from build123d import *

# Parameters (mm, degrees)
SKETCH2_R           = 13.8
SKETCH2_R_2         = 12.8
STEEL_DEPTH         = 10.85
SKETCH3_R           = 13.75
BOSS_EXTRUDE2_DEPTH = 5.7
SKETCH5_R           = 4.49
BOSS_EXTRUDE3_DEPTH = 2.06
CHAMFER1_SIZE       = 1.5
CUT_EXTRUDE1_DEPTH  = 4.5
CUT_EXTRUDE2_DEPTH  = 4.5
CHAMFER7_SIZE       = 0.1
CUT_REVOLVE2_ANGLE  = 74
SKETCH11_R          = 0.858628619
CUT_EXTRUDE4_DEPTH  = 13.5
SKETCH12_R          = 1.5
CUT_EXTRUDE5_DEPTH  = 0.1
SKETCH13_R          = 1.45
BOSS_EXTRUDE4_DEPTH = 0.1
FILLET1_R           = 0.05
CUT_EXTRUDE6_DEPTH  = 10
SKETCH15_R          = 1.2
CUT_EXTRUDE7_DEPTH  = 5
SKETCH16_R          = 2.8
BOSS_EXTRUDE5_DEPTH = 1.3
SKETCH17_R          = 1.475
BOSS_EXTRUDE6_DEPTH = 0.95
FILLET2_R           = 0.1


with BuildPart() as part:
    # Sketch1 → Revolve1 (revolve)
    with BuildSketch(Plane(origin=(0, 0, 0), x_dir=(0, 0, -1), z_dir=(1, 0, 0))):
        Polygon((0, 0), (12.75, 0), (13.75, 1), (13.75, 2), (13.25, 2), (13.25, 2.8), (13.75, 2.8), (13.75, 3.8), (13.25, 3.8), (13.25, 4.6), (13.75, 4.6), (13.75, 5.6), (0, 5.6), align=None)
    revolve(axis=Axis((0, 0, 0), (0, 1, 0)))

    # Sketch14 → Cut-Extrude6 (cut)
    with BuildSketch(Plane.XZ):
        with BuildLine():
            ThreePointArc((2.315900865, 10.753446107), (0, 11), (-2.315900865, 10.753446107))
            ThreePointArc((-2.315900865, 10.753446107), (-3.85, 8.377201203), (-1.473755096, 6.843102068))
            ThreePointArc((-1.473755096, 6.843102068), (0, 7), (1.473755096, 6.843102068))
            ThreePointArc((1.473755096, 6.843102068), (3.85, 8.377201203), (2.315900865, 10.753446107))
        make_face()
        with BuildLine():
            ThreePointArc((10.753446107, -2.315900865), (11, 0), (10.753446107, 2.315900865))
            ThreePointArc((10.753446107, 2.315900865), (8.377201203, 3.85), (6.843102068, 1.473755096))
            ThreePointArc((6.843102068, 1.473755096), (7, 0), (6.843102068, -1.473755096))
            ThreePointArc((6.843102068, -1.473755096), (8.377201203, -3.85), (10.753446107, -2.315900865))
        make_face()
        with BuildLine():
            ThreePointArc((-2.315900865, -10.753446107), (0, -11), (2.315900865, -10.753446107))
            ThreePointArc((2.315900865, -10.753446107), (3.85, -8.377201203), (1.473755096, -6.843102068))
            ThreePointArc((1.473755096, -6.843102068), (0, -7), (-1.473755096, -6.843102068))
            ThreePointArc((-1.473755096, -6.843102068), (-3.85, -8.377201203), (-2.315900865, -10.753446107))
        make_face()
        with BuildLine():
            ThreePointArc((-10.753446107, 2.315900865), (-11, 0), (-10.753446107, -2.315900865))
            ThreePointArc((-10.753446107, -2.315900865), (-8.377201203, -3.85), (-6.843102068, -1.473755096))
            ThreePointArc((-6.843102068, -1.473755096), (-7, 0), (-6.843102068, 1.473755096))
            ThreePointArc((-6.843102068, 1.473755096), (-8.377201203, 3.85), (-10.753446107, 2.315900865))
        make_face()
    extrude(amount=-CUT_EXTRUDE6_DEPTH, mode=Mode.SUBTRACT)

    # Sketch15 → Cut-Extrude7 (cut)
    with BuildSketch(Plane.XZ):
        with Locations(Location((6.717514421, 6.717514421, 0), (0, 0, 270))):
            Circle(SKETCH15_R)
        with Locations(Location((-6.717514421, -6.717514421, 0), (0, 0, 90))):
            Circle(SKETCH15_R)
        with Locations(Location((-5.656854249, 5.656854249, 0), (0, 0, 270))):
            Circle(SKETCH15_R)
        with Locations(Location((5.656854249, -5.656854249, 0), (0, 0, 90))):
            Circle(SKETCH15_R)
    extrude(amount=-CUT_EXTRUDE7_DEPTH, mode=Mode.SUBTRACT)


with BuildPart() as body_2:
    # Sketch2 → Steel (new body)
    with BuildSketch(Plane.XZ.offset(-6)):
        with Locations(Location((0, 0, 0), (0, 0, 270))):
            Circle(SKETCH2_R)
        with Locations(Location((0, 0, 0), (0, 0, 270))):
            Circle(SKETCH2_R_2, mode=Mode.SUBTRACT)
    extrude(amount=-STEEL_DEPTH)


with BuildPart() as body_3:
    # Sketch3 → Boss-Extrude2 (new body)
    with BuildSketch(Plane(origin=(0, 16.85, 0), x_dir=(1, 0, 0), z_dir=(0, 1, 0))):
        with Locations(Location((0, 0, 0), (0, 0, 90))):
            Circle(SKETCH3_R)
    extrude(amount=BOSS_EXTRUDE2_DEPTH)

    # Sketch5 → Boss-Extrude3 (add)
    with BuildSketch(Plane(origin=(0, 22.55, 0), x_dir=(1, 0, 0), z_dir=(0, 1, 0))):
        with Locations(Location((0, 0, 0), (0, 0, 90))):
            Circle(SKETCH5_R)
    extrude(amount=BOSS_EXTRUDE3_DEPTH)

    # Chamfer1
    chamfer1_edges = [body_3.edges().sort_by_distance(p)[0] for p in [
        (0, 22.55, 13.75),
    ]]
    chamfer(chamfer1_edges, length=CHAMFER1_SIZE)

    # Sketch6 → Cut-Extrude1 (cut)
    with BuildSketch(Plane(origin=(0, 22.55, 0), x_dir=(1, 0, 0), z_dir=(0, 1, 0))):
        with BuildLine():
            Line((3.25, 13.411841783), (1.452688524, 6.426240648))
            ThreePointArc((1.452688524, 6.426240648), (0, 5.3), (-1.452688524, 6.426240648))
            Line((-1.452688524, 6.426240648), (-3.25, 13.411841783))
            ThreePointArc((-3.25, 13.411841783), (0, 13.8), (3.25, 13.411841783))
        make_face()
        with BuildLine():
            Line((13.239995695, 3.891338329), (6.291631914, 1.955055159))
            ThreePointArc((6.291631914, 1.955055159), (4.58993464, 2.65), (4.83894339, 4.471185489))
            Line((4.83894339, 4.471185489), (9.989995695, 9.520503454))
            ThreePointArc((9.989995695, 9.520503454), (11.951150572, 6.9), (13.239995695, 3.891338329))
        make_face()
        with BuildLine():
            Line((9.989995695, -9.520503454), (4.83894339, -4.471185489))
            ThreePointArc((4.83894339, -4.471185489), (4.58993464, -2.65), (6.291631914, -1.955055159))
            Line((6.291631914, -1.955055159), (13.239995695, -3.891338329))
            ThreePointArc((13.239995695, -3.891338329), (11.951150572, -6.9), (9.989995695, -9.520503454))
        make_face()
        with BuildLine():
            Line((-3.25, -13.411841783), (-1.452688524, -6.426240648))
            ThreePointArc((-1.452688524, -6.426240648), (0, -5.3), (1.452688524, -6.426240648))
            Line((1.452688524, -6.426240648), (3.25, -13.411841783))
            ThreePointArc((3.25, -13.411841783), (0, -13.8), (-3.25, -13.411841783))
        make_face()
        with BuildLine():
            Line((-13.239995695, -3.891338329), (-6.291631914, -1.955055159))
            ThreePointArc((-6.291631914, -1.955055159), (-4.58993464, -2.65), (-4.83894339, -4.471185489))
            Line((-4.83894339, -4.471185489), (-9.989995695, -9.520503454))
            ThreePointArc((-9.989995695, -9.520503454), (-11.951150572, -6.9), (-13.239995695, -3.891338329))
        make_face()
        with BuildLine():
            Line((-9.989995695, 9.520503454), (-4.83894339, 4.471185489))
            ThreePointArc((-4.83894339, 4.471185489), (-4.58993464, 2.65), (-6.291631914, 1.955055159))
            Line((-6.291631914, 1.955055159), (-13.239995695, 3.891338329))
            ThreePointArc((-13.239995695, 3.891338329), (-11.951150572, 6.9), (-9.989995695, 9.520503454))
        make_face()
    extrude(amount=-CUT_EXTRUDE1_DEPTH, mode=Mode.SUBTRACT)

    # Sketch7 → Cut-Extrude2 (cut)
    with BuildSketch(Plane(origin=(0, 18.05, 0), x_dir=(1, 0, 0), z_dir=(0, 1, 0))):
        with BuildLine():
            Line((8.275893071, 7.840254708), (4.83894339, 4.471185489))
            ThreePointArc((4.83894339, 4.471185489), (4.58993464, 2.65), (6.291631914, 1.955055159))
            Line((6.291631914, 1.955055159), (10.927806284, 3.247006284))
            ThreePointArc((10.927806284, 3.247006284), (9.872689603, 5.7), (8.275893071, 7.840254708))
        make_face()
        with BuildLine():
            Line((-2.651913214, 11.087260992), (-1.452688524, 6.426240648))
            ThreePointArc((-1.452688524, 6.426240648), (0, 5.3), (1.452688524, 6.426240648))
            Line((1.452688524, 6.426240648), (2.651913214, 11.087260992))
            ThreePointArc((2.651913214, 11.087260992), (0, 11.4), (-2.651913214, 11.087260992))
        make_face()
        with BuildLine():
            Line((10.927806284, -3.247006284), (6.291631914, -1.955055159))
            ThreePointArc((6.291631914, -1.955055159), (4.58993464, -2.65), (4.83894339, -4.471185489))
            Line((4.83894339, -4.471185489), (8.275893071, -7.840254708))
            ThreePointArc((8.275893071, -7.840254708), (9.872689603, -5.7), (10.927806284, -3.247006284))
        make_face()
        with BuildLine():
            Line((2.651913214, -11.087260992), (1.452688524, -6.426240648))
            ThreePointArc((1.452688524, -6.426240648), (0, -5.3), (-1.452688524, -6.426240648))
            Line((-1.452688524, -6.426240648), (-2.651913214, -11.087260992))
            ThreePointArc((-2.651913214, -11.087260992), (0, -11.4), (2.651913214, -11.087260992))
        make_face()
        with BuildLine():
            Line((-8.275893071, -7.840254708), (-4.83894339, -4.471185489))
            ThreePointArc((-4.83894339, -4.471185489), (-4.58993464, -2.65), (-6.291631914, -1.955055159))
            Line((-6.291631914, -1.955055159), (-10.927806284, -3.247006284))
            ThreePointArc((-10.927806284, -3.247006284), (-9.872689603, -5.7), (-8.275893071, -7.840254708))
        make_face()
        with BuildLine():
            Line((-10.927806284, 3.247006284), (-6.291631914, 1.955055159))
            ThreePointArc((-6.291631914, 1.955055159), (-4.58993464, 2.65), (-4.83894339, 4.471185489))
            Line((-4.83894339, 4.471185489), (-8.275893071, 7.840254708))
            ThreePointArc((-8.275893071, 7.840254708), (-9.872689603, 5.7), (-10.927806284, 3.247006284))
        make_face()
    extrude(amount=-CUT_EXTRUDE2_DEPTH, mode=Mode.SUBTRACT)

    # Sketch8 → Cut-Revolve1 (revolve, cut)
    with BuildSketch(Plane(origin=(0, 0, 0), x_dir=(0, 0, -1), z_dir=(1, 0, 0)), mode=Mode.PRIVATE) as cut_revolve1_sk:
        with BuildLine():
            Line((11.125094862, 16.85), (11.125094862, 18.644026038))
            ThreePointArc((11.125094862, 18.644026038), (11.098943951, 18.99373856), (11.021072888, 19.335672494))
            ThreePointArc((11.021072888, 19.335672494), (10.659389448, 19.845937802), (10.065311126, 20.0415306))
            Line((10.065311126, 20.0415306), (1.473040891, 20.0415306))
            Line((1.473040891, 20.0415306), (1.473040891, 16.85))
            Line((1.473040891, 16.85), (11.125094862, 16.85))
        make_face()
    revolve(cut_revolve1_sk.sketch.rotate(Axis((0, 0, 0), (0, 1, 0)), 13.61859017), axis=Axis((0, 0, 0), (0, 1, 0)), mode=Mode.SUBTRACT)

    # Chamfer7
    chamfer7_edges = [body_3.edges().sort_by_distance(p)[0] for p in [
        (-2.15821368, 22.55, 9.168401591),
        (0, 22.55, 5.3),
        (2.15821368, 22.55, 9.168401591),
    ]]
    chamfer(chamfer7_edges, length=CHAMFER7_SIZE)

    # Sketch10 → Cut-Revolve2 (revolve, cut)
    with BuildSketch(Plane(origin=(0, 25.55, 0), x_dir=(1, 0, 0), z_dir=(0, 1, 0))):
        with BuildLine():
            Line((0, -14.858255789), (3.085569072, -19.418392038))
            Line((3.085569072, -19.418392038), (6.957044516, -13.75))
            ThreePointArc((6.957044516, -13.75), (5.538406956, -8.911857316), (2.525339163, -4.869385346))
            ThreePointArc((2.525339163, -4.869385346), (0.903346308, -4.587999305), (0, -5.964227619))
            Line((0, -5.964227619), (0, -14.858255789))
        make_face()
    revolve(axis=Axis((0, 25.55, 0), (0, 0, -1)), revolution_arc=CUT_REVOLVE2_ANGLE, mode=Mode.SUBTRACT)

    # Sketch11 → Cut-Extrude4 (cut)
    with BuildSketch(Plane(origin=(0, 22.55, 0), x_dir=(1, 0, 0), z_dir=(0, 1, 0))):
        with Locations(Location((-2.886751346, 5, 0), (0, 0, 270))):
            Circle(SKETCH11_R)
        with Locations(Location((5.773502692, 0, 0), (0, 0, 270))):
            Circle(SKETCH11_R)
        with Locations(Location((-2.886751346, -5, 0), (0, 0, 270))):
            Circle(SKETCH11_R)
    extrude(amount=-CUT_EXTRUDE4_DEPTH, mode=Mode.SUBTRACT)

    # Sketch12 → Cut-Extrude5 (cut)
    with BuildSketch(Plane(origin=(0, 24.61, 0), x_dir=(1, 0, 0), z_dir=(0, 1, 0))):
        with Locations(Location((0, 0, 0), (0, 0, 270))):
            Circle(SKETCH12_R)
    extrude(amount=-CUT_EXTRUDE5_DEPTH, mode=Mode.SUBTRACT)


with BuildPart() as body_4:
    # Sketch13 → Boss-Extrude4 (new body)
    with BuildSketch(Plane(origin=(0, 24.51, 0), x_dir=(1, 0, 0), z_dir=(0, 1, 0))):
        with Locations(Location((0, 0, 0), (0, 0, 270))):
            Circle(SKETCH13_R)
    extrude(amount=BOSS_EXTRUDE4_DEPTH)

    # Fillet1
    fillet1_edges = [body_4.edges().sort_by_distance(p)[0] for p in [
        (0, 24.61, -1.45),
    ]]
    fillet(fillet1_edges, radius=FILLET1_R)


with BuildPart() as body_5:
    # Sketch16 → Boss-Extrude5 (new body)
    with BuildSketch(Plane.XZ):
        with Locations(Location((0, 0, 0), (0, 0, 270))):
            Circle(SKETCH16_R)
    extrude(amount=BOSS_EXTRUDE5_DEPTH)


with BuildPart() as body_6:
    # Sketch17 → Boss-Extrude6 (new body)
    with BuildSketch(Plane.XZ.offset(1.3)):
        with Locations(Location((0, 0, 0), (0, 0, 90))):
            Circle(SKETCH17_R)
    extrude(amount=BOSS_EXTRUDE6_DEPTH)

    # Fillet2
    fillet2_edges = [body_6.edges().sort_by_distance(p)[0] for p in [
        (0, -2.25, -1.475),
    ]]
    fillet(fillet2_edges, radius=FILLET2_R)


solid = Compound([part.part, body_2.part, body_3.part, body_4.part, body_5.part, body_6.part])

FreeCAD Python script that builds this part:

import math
import FreeCAD as App
import Part
import Sketcher

V = App.Vector
Q = App.Units.Quantity


def edges_at(feature, points):
    """Names of the edges that pass closest to the given points."""
    edges = feature.Shape.Edges
    near = lambda p: min(range(len(edges)), key=lambda i: edges[i].distToShape(Part.Vertex(*p))[0])
    return sorted({f"Edge{near(p) + 1}" for p in points})

doc = App.newDocument("Part")
body = doc.addObject("PartDesign::Body", "Body")

sketch1 = doc.addObject("Sketcher::SketchObject", "Sketch")
body.addObject(sketch1)
sketch1.AttachmentSupport = (doc.YZ_Plane, [""])
sketch1.MapMode = "FlatFace"
sketch1.addGeometry([
    Part.LineSegment(V(0, 0, 0), V(0, -12.8, 0)),
    Part.LineSegment(V(0, -12.8, 0), V(1, -13.8, 0)),
    Part.LineSegment(V(1, -13.8, 0), V(2, -13.8, 0)),
    Part.LineSegment(V(2, -13.8, 0), V(2, -13.2, 0)),
    Part.LineSegment(V(2, -13.2, 0), V(2.8, -13.2, 0)),
    Part.LineSegment(V(2.8, -13.2, 0), V(2.8, -13.8, 0)),
    Part.LineSegment(V(2.8, -13.8, 0), V(3.8, -13.8, 0)),
    Part.LineSegment(V(3.8, -13.8, 0), V(3.8, -13.2, 0)),
    Part.LineSegment(V(3.8, -13.2, 0), V(4.6, -13.2, 0)),
    Part.LineSegment(V(4.6, -13.2, 0), V(4.6, -13.8, 0)),
    Part.LineSegment(V(4.6, -13.8, 0), V(5.6, -13.8, 0)),
    Part.LineSegment(V(5.6, -13.8, 0), V(5.6, 0, 0)),
    Part.LineSegment(V(5.6, 0, 0), V(0, 0, 0)),
], False)
sketch1.addConstraint([
    Sketcher.Constraint("Coincident", 0, 2, 1, 1),
    Sketcher.Constraint("Coincident", 1, 2, 2, 1),
    Sketcher.Constraint("Coincident", 2, 2, 3, 1),
    Sketcher.Constraint("Coincident", 3, 2, 4, 1),
    Sketcher.Constraint("Coincident", 4, 2, 5, 1),
    Sketcher.Constraint("Coincident", 5, 2, 6, 1),
    Sketcher.Constraint("Coincident", 6, 2, 7, 1),
    Sketcher.Constraint("Coincident", 7, 2, 8, 1),
    Sketcher.Constraint("Coincident", 8, 2, 9, 1),
    Sketcher.Constraint("Coincident", 9, 2, 10, 1),
    Sketcher.Constraint("Coincident", 10, 2, 11, 1),
    Sketcher.Constraint("Coincident", 11, 2, 12, 1),
    Sketcher.Constraint("Coincident", 12, 2, 0, 1),
    Sketcher.Constraint("Vertical", 0),
    Sketcher.Constraint("Horizontal", 2),
    Sketcher.Constraint("Vertical", 3),
    Sketcher.Constraint("Horizontal", 4),
    Sketcher.Constraint("Vertical", 5),
    Sketcher.Constraint("Horizontal", 6),
    Sketcher.Constraint("Vertical", 7),
    Sketcher.Constraint("Horizontal", 8),
    Sketcher.Constraint("Vertical", 9),
    Sketcher.Constraint("Horizontal", 10),
    Sketcher.Constraint("Vertical", 11),
    Sketcher.Constraint("Horizontal", 12),
    Sketcher.Constraint("Coincident", 12, 2, -1, 1),
    Sketcher.Constraint("Horizontal", 2, 2, 5, 2),
    Sketcher.Constraint("Horizontal", 4, 2, 7, 2),
    Sketcher.Constraint("Horizontal", 6, 2, 9, 2),
    Sketcher.Constraint("Equal", 2, 6),
    Sketcher.Constraint("Equal", 4, 8),
    Sketcher.Constraint("Equal", 6, 10),
    Sketcher.Constraint("DistanceX", 2, 1, 2, 2, 1.0),
    Sketcher.Constraint("Angle", 1, Q("-45 deg")),
    Sketcher.Constraint("DistanceX", 4, 1, 4, 2, 0.8),
    Sketcher.Constraint("DistanceX", 12, 2, 12, 1, 5.6),
    Sketcher.Constraint("DistanceY", 3, 1, 3, 2, 0.5),
    Sketcher.Constraint("DistanceY", 0, 2, 0, 1, 12.75),
])
revolution = doc.addObject("PartDesign::Revolution", "Revolution")
body.addObject(revolution)
revolution.Profile = sketch1
revolution.ReferenceAxis = (sketch1, ["H_Axis"])
revolution.Angle = 360

sketch2 = doc.addObject("Sketcher::SketchObject", "Sketch001")
body.addObject(sketch2)
sketch2.AttachmentSupport = (doc.XZ_Plane, [""])
sketch2.MapMode = "FlatFace"
sketch2.addGeometry([
    Part.ArcOfCircle(Part.Circle(V(0, 0, 0), V(0, 0, 1), 11), math.radians(78), math.radians(102)),
    Part.ArcOfCircle(Part.Circle(V(-1.9, 8.8, 0), V(0, 0, 1), 2), math.radians(102), math.radians(282)),
    Part.ArcOfCircle(Part.Circle(V(0, 0, 0), V(0, 0, 1), 7), math.radians(78), math.radians(102)),
    Part.ArcOfCircle(Part.Circle(V(1.9, 8.8, 0), V(0, 0, 1), 2), math.radians(-102), math.radians(78)),
    Part.ArcOfCircle(Part.Circle(V(0, 0, 0), V(0, 0, 1), 11), math.radians(-12), math.radians(12)),
    Part.ArcOfCircle(Part.Circle(V(8.8, 1.9, 0), V(0, 0, 1), 2), math.radians(12), math.radians(192)),
    Part.ArcOfCircle(Part.Circle(V(0, 0, 0), V(0, 0, 1), 7), math.radians(-12), math.radians(12)),
    Part.ArcOfCircle(Part.Circle(V(8.8, -1.9, 0), V(0, 0, 1), 2), math.radians(168), math.radians(348)),
    Part.ArcOfCircle(Part.Circle(V(0, 0, 0), V(0, 0, 1), 11), math.radians(-102), math.radians(-78)),
    Part.ArcOfCircle(Part.Circle(V(1.9, -8.8, 0), V(0, 0, 1), 2), math.radians(-78), math.radians(102)),
    Part.ArcOfCircle(Part.Circle(V(0, 0, 0), V(0, 0, 1), 7), math.radians(-102), math.radians(-78)),
    Part.ArcOfCircle(Part.Circle(V(-1.9, -8.8, 0), V(0, 0, 1), 2), math.radians(78), math.radians(258)),
    Part.ArcOfCircle(Part.Circle(V(0, 0, 0), V(0, 0, 1), 11), math.radians(168), math.radians(192)),
    Part.ArcOfCircle(Part.Circle(V(-8.8, -1.9, 0), V(0, 0, 1), 2), math.radians(-168), math.radians(12)),
    Part.ArcOfCircle(Part.Circle(V(0, 0, 0), V(0, 0, 1), 7), math.radians(168), math.radians(192)),
    Part.ArcOfCircle(Part.Circle(V(-8.8, 1.9, 0), V(0, 0, 1), 2), math.radians(-12), math.radians(168)),
], False)
sketch2.addConstraint([
    Sketcher.Constraint("Tangent", 0, 2, 1, 1),
    Sketcher.Constraint("Tangent", 1, 2, 2, 2),
    Sketcher.Constraint("Tangent", 2, 1, 3, 1),
    Sketcher.Constraint("Tangent", 3, 2, 0, 1),
    Sketcher.Constraint("Tangent", 4, 2, 5, 1),
    Sketcher.Constraint("Tangent", 5, 2, 6, 2),
    Sketcher.Constraint("Tangent", 6, 1, 7, 1),
    Sketcher.Constraint("Tangent", 7, 2, 4, 1),
    Sketcher.Constraint("Tangent", 8, 2, 9, 1),
    Sketcher.Constraint("Tangent", 9, 2, 10, 2),
    Sketcher.Constraint("Tangent", 10, 1, 11, 1),
    Sketcher.Constraint("Tangent", 11, 2, 8, 1),
    Sketcher.Constraint("Tangent", 12, 2, 13, 1),
    Sketcher.Constraint("Tangent", 13, 2, 14, 2),
    Sketcher.Constraint("Tangent", 14, 1, 15, 1),
    Sketcher.Constraint("Tangent", 15, 2, 12, 1),
    Sketcher.Constraint("Coincident", 0, 3, -1, 1),
    Sketcher.Constraint("Coincident", 2, 3, -1, 1),
    Sketcher.Constraint("Coincident", 4, 3, -1, 1),
    Sketcher.Constraint("Coincident", 6, 3, -1, 1),
    Sketcher.Constraint("Coincident", 8, 3, -1, 1),
    Sketcher.Constraint("Coincident", 10, 3, -1, 1),
    Sketcher.Constraint("Coincident", 12, 3, -1, 1),
    Sketcher.Constraint("Coincident", 14, 3, -1, 1),
    Sketcher.Constraint("Equal", 0, 4),
    Sketcher.Constraint("Equal", 3, 5),
    Sketcher.Constraint("Equal", 4, 8),
    Sketcher.Constraint("Equal", 7, 9),
    Sketcher.Constraint("Equal", 8, 12),
    Sketcher.Constraint("Equal", 11, 13),
    Sketcher.Constraint("Horizontal", 1, 3, 3, 3),
    Sketcher.Constraint("Horizontal", 9, 3, 11, 3),
    Sketcher.Constraint("Horizontal", 7, 3, 13, 3),
    Sketcher.Constraint("Horizontal", 5, 3, 15, 3),
    Sketcher.Constraint("Vertical", 5, 3, 7, 3),
    Sketcher.Constraint("Vertical", 3, 3, 9, 3),
    Sketcher.Constraint("Radius", 0, 11.0),
    Sketcher.Constraint("Radius", 1, 2.0),
    Sketcher.Constraint("DistanceX", 0, 2, -1, 1, 2.315901),
    Sketcher.Constraint("DistanceY", -1, 1, 4, 2, 2.315901),
])
pocket1 = doc.addObject("PartDesign::Pocket", "Pocket")
body.addObject(pocket1)
pocket1.Profile = sketch2
pocket1.Length = 10

sketch3 = doc.addObject("Sketcher::SketchObject", "Sketch002")
body.addObject(sketch3)
sketch3.AttachmentSupport = (doc.XZ_Plane, [""])
sketch3.MapMode = "FlatFace"
sketch3.addGeometry([
    Part.Circle(V(6.7, 6.7, 0), V(0, 0, 1), 1.2),
    Part.Circle(V(-6.7, -6.7, 0), V(0, 0, 1), 1.2),
    Part.Circle(V(-5.7, 5.7, 0), V(0, 0, 1), 1.2),
    Part.Circle(V(5.7, -5.7, 0), V(0, 0, 1), 1.2),
], False)
sketch3.addConstraint([
    Sketcher.Constraint("Equal", 0, 1),
    Sketcher.Constraint("Equal", 1, 2),
    Sketcher.Constraint("Equal", 2, 3),
    Sketcher.Constraint("Symmetric", 0, 3, 1, 3, -1, 1),
    Sketcher.Constraint("Symmetric", 2, 3, 3, 3, -1, 1),
    Sketcher.Constraint("Diameter", 0, 2.4),
    Sketcher.Constraint("DistanceX", 1, 3, 0, 3, 13.435029),
    Sketcher.Constraint("DistanceY", 1, 3, 0, 3, 13.435029),
    Sketcher.Constraint("DistanceX", 2, 3, 0, 3, 12.374369),
    Sketcher.Constraint("DistanceY", 2, 3, 0, 3, 1.06066),
])
pocket2 = doc.addObject("PartDesign::Pocket", "Pocket001")
body.addObject(pocket2)
pocket2.Profile = sketch3
pocket2.Length = 5
body2 = doc.addObject("PartDesign::Body", "Body001")

sketch4 = doc.addObject("Sketcher::SketchObject", "Sketch003")
body2.addObject(sketch4)
sketch4.AttachmentSupport = (doc.getObject("XZ_Plane001"), [""])
sketch4.MapMode = "FlatFace"
sketch4.AttachmentOffset = App.Placement(V(0, 0, -6), App.Rotation())
sketch4.addGeometry([
    Part.Circle(V(0, 0, 0), V(0, 0, 1), 14),
    Part.Circle(V(0, 0, 0), V(0, 0, 1), 13),
], False)
sketch4.addConstraint([
    Sketcher.Constraint("Coincident", 0, 3, -1, 1),
    Sketcher.Constraint("Coincident", 1, 3, -1, 1),
    Sketcher.Constraint("Diameter", 0, 27.6),
    Sketcher.Constraint("Diameter", 1, 25.6),
])
pad1 = doc.addObject("PartDesign::Pad", "Pad")
body2.addObject(pad1)
pad1.Profile = sketch4
pad1.Length = 10.85
pad1.Reversed = True
body3 = doc.addObject("PartDesign::Body", "Body002")

sketch5 = doc.addObject("Sketcher::SketchObject", "Sketch004")
body3.addObject(sketch5)
sketch5.AttachmentSupport = (doc.getObject("XZ_Plane002"), [""])
sketch5.MapMode = "FlatFace"
sketch5.AttachmentOffset = App.Placement(V(0, 0, -16.85), App.Rotation())
sketch5.addGeometry(Part.Circle(V(0, 0, 0), V(0, 0, 1), 14), False)
sketch5.addConstraint([
    Sketcher.Constraint("Coincident", 0, 3, -1, 1),
    Sketcher.Constraint("Diameter", 0, 27.5),
])
pad2 = doc.addObject("PartDesign::Pad", "Pad001")
body3.addObject(pad2)
pad2.Profile = sketch5
pad2.Length = 5.7
pad2.Reversed = True

sketch6 = doc.addObject("Sketcher::SketchObject", "Sketch005")
body3.addObject(sketch6)
sketch6.AttachmentSupport = (doc.getObject("XZ_Plane002"), [""])
sketch6.MapMode = "FlatFace"
sketch6.AttachmentOffset = App.Placement(V(0, 0, -22.55), App.Rotation())
sketch6.addGeometry(Part.Circle(V(0, 0, 0), V(0, 0, 1), 4.5), False)
sketch6.addConstraint([
    Sketcher.Constraint("Coincident", 0, 3, -1, 1),
    Sketcher.Constraint("Diameter", 0, 8.98),
])
pad3 = doc.addObject("PartDesign::Pad", "Pad002")
body3.addObject(pad3)
pad3.Profile = sketch6
pad3.Length = 2.06
pad3.Reversed = True
doc.recompute()

chamfer = doc.addObject("PartDesign::Chamfer", "Chamfer")
body3.addObject(chamfer)
chamfer.Base = (pad3, edges_at(pad3, [(0, 22.55, 13.75)]))
chamfer.Size = 1.5

sketch7 = doc.addObject("Sketcher::SketchObject", "Sketch006")
body3.addObject(sketch7)
sketch7.AttachmentSupport = (doc.getObject("XZ_Plane002"), [""])
sketch7.MapMode = "FlatFace"
sketch7.AttachmentOffset = App.Placement(V(0, 0, -22.55), App.Rotation())
sketch7.addGeometry([
    Part.LineSegment(V(1.5, -6.4, 0), V(3.2, -13.4, 0)),
    Part.ArcOfCircle(Part.Circle(V(0, 0, 0), V(0, 0, 1), 13.8), math.radians(-104), math.radians(-76)),
    Part.LineSegment(V(-3.2, -13.4, 0), V(-1.5, -6.4, 0)),
    Part.ArcOfCircle(Part.Circle(V(0, -6.8, 0), V(0, 0, 1), 1.5), math.radians(14), math.radians(166)),
    Part.LineSegment(V(6.3, -2, 0), V(13.2, -3.9, 0)),
    Part.ArcOfCircle(Part.Circle(V(0, 0, 0), V(0, 0, 1), 13.8), math.radians(-44), math.radians(-16)),
    Part.LineSegment(V(10, -9.5, 0), V(4.8, -4.5, 0)),
    Part.ArcOfCircle(Part.Circle(V(5.9, -3.4, 0), V(0, 0, 1), 1.5), math.radians(74), math.radians(226)),
    Part.LineSegment(V(4.8, 4.5, 0), V(10, 9.5, 0)),
    Part.ArcOfCircle(Part.Circle(V(0, 0, 0), V(0, 0, 1), 13.8), math.radians(16), math.radians(44)),
    Part.LineSegment(V(13.2, 3.9, 0), V(6.3, 2, 0)),
    Part.ArcOfCircle(Part.Circle(V(5.9, 3.4, 0), V(0, 0, 1), 1.5), math.radians(134), math.radians(286)),
    Part.LineSegment(V(-1.5, 6.4, 0), V(-3.2, 13.4, 0)),
    Part.ArcOfCircle(Part.Circle(V(0, 0, 0), V(0, 0, 1), 13.8), math.radians(76), math.radians(104)),
    Part.LineSegment(V(3.2, 13.4, 0), V(1.5, 6.4, 0)),
    Part.ArcOfCircle(Part.Circle(V(0, 6.8, 0), V(0, 0, 1), 1.5), math.radians(-166), math.radians(-14)),
    Part.LineSegment(V(-6.3, 2, 0), V(-13.2, 3.9, 0)),
    Part.ArcOfCircle(Part.Circle(V(0, 0, 0), V(0, 0, 1), 13.8), math.radians(136), math.radians(164)),
    Part.LineSegment(V(-10, 9.5, 0), V(-4.8, 4.5, 0)),
    Part.ArcOfCircle(Part.Circle(V(-5.9, 3.4, 0), V(0, 0, 1), 1.5), math.radians(-106), math.radians(46)),
    Part.LineSegment(V(-4.8, -4.5, 0), V(-10, -9.5, 0)),
    Part.ArcOfCircle(Part.Circle(V(0, 0, 0), V(0, 0, 1), 13.8), math.radians(-164), math.radians(-136)),
    Part.LineSegment(V(-13.2, -3.9, 0), V(-6.3, -2, 0)),
    Part.ArcOfCircle(Part.Circle(V(-5.9, -3.4, 0), V(0, 0, 1), 1.5), math.radians(-46), math.radians(106)),
], False)
sketch7.addConstraint([
    Sketcher.Constraint("Coincident", 0, 2, 1, 2),
    Sketcher.Constraint("Coincident", 1, 1, 2, 1),
    Sketcher.Constraint("Tangent", 2, 2, 3, 2),
    Sketcher.Constraint("Tangent", 3, 1, 0, 1),
    Sketcher.Constraint("Coincident", 4, 2, 5, 2),
    Sketcher.Constraint("Coincident", 5, 1, 6, 1),
    Sketcher.Constraint("Tangent", 6, 2, 7, 2),
    Sketcher.Constraint("Tangent", 7, 1, 4, 1),
    Sketcher.Constraint("Coincident", 8, 2, 9, 2),
    Sketcher.Constraint("Coincident", 9, 1, 10, 1),
    Sketcher.Constraint("Tangent", 10, 2, 11, 2),
    Sketcher.Constraint("Tangent", 11, 1, 8, 1),
    Sketcher.Constraint("Coincident", 12, 2, 13, 2),
    Sketcher.Constraint("Coincident", 13, 1, 14, 1),
    Sketcher.Constraint("Tangent", 14, 2, 15, 2),
    Sketcher.Constraint("Tangent", 15, 1, 12, 1),
    Sketcher.Constraint("Coincident", 16, 2, 17, 2),
    Sketcher.Constraint("Coincident", 17, 1, 18, 1),
    Sketcher.Constraint("Tangent", 18, 2, 19, 2),
    Sketcher.Constraint("Tangent", 19, 1, 16, 1),
    Sketcher.Constraint("Coincident", 20, 2, 21, 2),
    Sketcher.Constraint("Coincident", 21, 1, 22, 1),
    Sketcher.Constraint("Tangent", 22, 2, 23, 2),
    Sketcher.Constraint("Tangent", 23, 1, 20, 1),
    Sketcher.Constraint("Coincident", 1, 3, -1, 1),
    Sketcher.Constraint("Coincident", 5, 3, -1, 1),
    Sketcher.Constraint("Coincident", 9, 3, -1, 1),
    Sketcher.Constraint("Coincident", 13, 3, -1, 1),
    Sketcher.Constraint("Coincident", 17, 3, -1, 1),
    Sketcher.Constraint("Coincident", 21, 3, -1, 1),
    Sketcher.Constraint("Equal", 1, 5),
    Sketcher.Constraint("Equal", 3, 7),
    Sketcher.Constraint("Equal", 5, 9),
    Sketcher.Constraint("Equal", 7, 11),
    Sketcher.Constraint("Equal", 9, 13),
    Sketcher.Constraint("Equal", 11, 15),
    Sketcher.Constraint("Equal", 13, 17),
    Sketcher.Constraint("Equal", 15, 19),
    Sketcher.Constraint("Equal", 17, 21),
    Sketcher.Constraint("Equal", 19, 23),
    Sketcher.Constraint("Symmetric", 3, 3, 15, 3, -1, 1),
    Sketcher.Constraint("Symmetric", 7, 3, 19, 3, -1, 1),
    Sketcher.Constraint("Symmetric", 11, 3, 23, 3, -1, 1),
    Sketcher.Constraint("Symmetric", 11, 3, 19, 3, -2),
    Sketcher.Constraint("Symmetric", 2, 2, 3, 1, -2),
    Sketcher.Constraint("Parallel", 0, 12),
    Sketcher.Constraint("Parallel", 2, 14),
    Sketcher.Constraint("Parallel", 4, 16),
    Sketcher.Constraint("Parallel", 6, 18),
    Sketcher.Constraint("Parallel", 8, 20),
    Sketcher.Constraint("Parallel", 10, 22),
    Sketcher.Constraint("Horizontal", 9, 1, 16, 2),
    Sketcher.Constraint("Horizontal", 8, 2, 17, 1),
    Sketcher.Constraint("Equal", 2, 4),
    Sketcher.Constraint("Equal", 4, 6),
    Sketcher.Constraint("Radius", 1, 13.8),
    Sketcher.Constraint("Radius", 3, 1.5),
    Sketcher.Constraint("DistanceY", 3, 3, -1, 1, 6.8),
    Sketcher.Constraint("DistanceY", 7, 3, -1, 1, 3.4),
    Sketcher.Constraint("DistanceX", 1, 1, 0, 2, 6.5),
    Sketcher.Constraint("DistanceX", 5, 1, 4, 2, 3.25),
])
pocket3 = doc.addObject("PartDesign::Pocket", "Pocket002")
body3.addObject(pocket3)
pocket3.Profile = sketch7
pocket3.Length = 4.5
pocket3.Reversed = True

sketch8 = doc.addObject("Sketcher::SketchObject", "Sketch007")
body3.addObject(sketch8)
sketch8.AttachmentSupport = (doc.getObject("XZ_Plane002"), [""])
sketch8.MapMode = "FlatFace"
sketch8.AttachmentOffset = App.Placement(V(0, 0, -18.05), App.Rotation())
sketch8.addGeometry([
    Part.LineSegment(V(8.3, -7.8, 0), V(4.8, -4.5, 0)),
    Part.ArcOfCircle(Part.Circle(V(5.9, -3.4, 0), V(0, 0, 1), 1.5), math.radians(74), math.radians(226)),
    Part.LineSegment(V(6.3, -2, 0), V(10.9, -3.2, 0)),
    Part.ArcOfCircle(Part.Circle(V(0, 0, 0), V(0, 0, 1), 11.4), math.radians(-43), math.radians(-17)),
    Part.LineSegment(V(-2.7, -11.1, 0), V(-1.5, -6.4, 0)),
    Part.ArcOfCircle(Part.Circle(V(0, -6.8, 0), V(0, 0, 1), 1.5), math.radians(14), math.radians(166)),
    Part.LineSegment(V(1.5, -6.4, 0), V(2.7, -11.1, 0)),
    Part.ArcOfCircle(Part.Circle(V(0, 0, 0), V(0, 0, 1), 11.4), math.radians(-103), math.radians(-77)),
    Part.LineSegment(V(10.9, 3.2, 0), V(6.3, 2, 0)),
    Part.ArcOfCircle(Part.Circle(V(5.9, 3.4, 0), V(0, 0, 1), 1.5), math.radians(134), math.radians(286)),
    Part.LineSegment(V(4.8, 4.5, 0), V(8.3, 7.8, 0)),
    Part.ArcOfCircle(Part.Circle(V(0, 0, 0), V(0, 0, 1), 11.4), math.radians(17), math.radians(43)),
    Part.LineSegment(V(2.7, 11.1, 0), V(1.5, 6.4, 0)),
    Part.ArcOfCircle(Part.Circle(V(0, 6.8, 0), V(0, 0, 1), 1.5), math.radians(-166), math.radians(-14)),
    Part.LineSegment(V(-1.5, 6.4, 0), V(-2.7, 11.1, 0)),
    Part.ArcOfCircle(Part.Circle(V(0, 0, 0), V(0, 0, 1), 11.4), math.radians(77), math.radians(103)),
    Part.LineSegment(V(-8.3, 7.8, 0), V(-4.8, 4.5, 0)),
    Part.ArcOfCircle(Part.Circle(V(-5.9, 3.4, 0), V(0, 0, 1), 1.5), math.radians(-106), math.radians(46)),
    Part.LineSegment(V(-6.3, 2, 0), V(-10.9, 3.2, 0)),
    Part.ArcOfCircle(Part.Circle(V(0, 0, 0), V(0, 0, 1), 11.4), math.radians(137), math.radians(163)),
    Part.LineSegment(V(-10.9, -3.2, 0), V(-6.3, -2, 0)),
    Part.ArcOfCircle(Part.Circle(V(-5.9, -3.4, 0), V(0, 0, 1), 1.5), math.radians(-46), math.radians(106)),
    Part.LineSegment(V(-4.8, -4.5, 0), V(-8.3, -7.8, 0)),
    Part.ArcOfCircle(Part.Circle(V(0, 0, 0), V(0, 0, 1), 11.4), math.radians(-163), math.radians(-137)),
], False)
sketch8.addConstraint([
    Sketcher.Constraint("Tangent", 0, 2, 1, 2),
    Sketcher.Constraint("Tangent", 1, 1, 2, 1),
    Sketcher.Constraint("Coincident", 2, 2, 3, 2),
    Sketcher.Constraint("Coincident", 3, 1, 0, 1),
    Sketcher.Constraint("Tangent", 4, 2, 5, 2),
    Sketcher.Constraint("Tangent", 5, 1, 6, 1),
    Sketcher.Constraint("Coincident", 6, 2, 7, 2),
    Sketcher.Constraint("Coincident", 7, 1, 4, 1),
    Sketcher.Constraint("Tangent", 8, 2, 9, 2),
    Sketcher.Constraint("Tangent", 9, 1, 10, 1),
    Sketcher.Constraint("Coincident", 10, 2, 11, 2),
    Sketcher.Constraint("Coincident", 11, 1, 8, 1),
    Sketcher.Constraint("Tangent", 12, 2, 13, 2),
    Sketcher.Constraint("Tangent", 13, 1, 14, 1),
    Sketcher.Constraint("Coincident", 14, 2, 15, 2),
    Sketcher.Constraint("Coincident", 15, 1, 12, 1),
    Sketcher.Constraint("Tangent", 16, 2, 17, 2),
    Sketcher.Constraint("Tangent", 17, 1, 18, 1),
    Sketcher.Constraint("Coincident", 18, 2, 19, 2),
    Sketcher.Constraint("Coincident", 19, 1, 16, 1),
    Sketcher.Constraint("Tangent", 20, 2, 21, 2),
    Sketcher.Constraint("Tangent", 21, 1, 22, 1),
    Sketcher.Constraint("Coincident", 22, 2, 23, 2),
    Sketcher.Constraint("Coincident", 23, 1, 20, 1),
    Sketcher.Constraint("Coincident", 3, 3, -1, 1),
    Sketcher.Constraint("Coincident", 7, 3, -1, 1),
    Sketcher.Constraint("Coincident", 11, 3, -1, 1),
    Sketcher.Constraint("Coincident", 15, 3, -1, 1),
    Sketcher.Constraint("Coincident", 19, 3, -1, 1),
    Sketcher.Constraint("Coincident", 23, 3, -1, 1),
    Sketcher.Constraint("Equal", 1, 5),
    Sketcher.Constraint("Equal", 3, 7),
    Sketcher.Constraint("Equal", 5, 9),
    Sketcher.Constraint("Equal", 7, 11),
    Sketcher.Constraint("Equal", 9, 13),
    Sketcher.Constraint("Equal", 11, 15),
    Sketcher.Constraint("Equal", 13, 17),
    Sketcher.Constraint("Equal", 15, 19),
    Sketcher.Constraint("Equal", 17, 21),
    Sketcher.Constraint("Equal", 19, 23),
    Sketcher.Constraint("Symmetric", 5, 3, 13, 3, -1, 1),
    Sketcher.Constraint("Symmetric", 1, 3, 17, 3, -1, 1),
    Sketcher.Constraint("Symmetric", 9, 3, 21, 3, -1, 1),
    Sketcher.Constraint("Symmetric", 9, 3, 17, 3, -2),
    Sketcher.Constraint("Symmetric", 4, 2, 5, 1, -2),
    Sketcher.Constraint("Parallel", 4, 12),
    Sketcher.Constraint("Parallel", 6, 14),
    Sketcher.Constraint("Parallel", 0, 16),
    Sketcher.Constraint("Parallel", 2, 18),
    Sketcher.Constraint("Parallel", 8, 20),
    Sketcher.Constraint("Parallel", 10, 22),
    Sketcher.Constraint("Horizontal", 9, 1, 16, 2),
    Sketcher.Constraint("Horizontal", 8, 2, 17, 1),
    Sketcher.Constraint("Equal", 0, 2),
    Sketcher.Constraint("Equal", 2, 4),
    Sketcher.Constraint("Radius", 1, 1.5),
    Sketcher.Constraint("Radius", 3, 11.4),
    Sketcher.Constraint("DistanceY", 1, 3, -1, 1, 3.4),
    Sketcher.Constraint("DistanceY", 5, 3, -1, 1, 6.8),
    Sketcher.Constraint("DistanceY", 3, 1, 1, 1, 5.8852),
    Sketcher.Constraint("DistanceX", 4, 2, 6, 2, 4.104602),
])
pocket4 = doc.addObject("PartDesign::Pocket", "Pocket003")
body3.addObject(pocket4)
pocket4.Profile = sketch8
pocket4.Length = 4.5
pocket4.Reversed = True

sketch9 = doc.addObject("Sketcher::SketchObject", "Sketch008")
body3.addObject(sketch9)
sketch9.AttachmentSupport = (doc.getObject("YZ_Plane002"), [""])
sketch9.MapMode = "FlatFace"
sketch9.addGeometry([
    Part.LineSegment(V(16.9, -11.1, 0), V(18.6, -11.1, 0)),
    Part.ArcOfCircle(Part.Circle(V(18.6, -8.8, 0), V(0, 0, 1), 2.4), math.radians(-90), math.radians(-72.89)),
    Part.ArcOfCircle(Part.Circle(V(19, -10.1, 0), V(0, 0, 1), 1), math.radians(-73), math.radians(0)),
    Part.LineSegment(V(20, -10.1, 0), V(20, -1.5, 0)),
    Part.LineSegment(V(20, -1.5, 0), V(16.9, -1.5, 0)),
    Part.LineSegment(V(16.9, -1.5, 0), V(16.9, -11.1, 0)),
], False)
sketch9.addConstraint([
    Sketcher.Constraint("Tangent", 0, 2, 1, 1),
    Sketcher.Constraint("Tangent", 1, 2, 2, 1),
    Sketcher.Constraint("Tangent", 2, 2, 3, 1),
    Sketcher.Constraint("Coincident", 3, 2, 4, 1),
    Sketcher.Constraint("Coincident", 4, 2, 5, 1),
    Sketcher.Constraint("Coincident", 5, 2, 0, 1),
    Sketcher.Constraint("Horizontal", 0),
    Sketcher.Constraint("Vertical", 3),
    Sketcher.Constraint("Horizontal", 4),
    Sketcher.Constraint("Vertical", 5),
    Sketcher.Constraint("Radius", 2, 1.0),
    Sketcher.Constraint("DistanceX", -1, 1, 4, 2, 16.85),
    Sketcher.Constraint("Radius", 1, 2.351404),
    Sketcher.Constraint("DistanceX", 4, 2, 4, 1, 3.191531),
    Sketcher.Constraint("DistanceY", 3, 1, 3, 2, 8.59227),
    Sketcher.Constraint("DistanceX", 0, 1, 0, 2, 1.794026),
    Sketcher.Constraint("DistanceY", 1, 3, -1, 1, 8.773691),
])
groove = doc.addObject("PartDesign::Groove", "Groove")
body3.addObject(groove)
groove.Profile = sketch9
groove.ReferenceAxis = (sketch9, ["H_Axis"])
groove.Angle = 360
doc.recompute()

chamfer2 = doc.addObject("PartDesign::Chamfer", "Chamfer001")
body3.addObject(chamfer2)
chamfer2.Base = (groove, edges_at(groove, [(-2.158, 22.55, 9.168), (0, 22.55, 5.3), (2.158, 22.55, 9.168)]))
chamfer2.Size = 0.1

sketch10 = doc.addObject("Sketcher::SketchObject", "Sketch009")
body3.addObject(sketch10)
sketch10.AttachmentSupport = (doc.getObject("XZ_Plane002"), [""])
sketch10.MapMode = "FlatFace"
sketch10.AttachmentOffset = App.Placement(V(0, 0, -25.55), App.Rotation())
sketch10.addGeometry([
    Part.LineSegment(V(0, 14.9, 0), V(3.1, 19.4, 0)),
    Part.LineSegment(V(3.1, 19.4, 0), V(7, 13.8, 0)),
    Part.ArcOfCircle(Part.Circle(V(-7.2, 15.3, 0), V(0, 0, 1), 14.3), math.radians(-47), math.radians(-6)),
    Part.ArcOfCircle(Part.Circle(V(1.5, 6, 0), V(0, 0, 1), 1.5), math.radians(180), math.radians(313)),
    Part.LineSegment(V(0, 6, 0), V(0, 14.9, 0)),
], False)
sketch10.addConstraint([
    Sketcher.Constraint("Coincident", 0, 2, 1, 1),
    Sketcher.Constraint("Coincident", 1, 2, 2, 2),
    Sketcher.Constraint("Tangent", 2, 1, 3, 2),
    Sketcher.Constraint("Tangent", 3, 1, 4, 1),
    Sketcher.Constraint("Coincident", 4, 2, 0, 1),
    Sketcher.Constraint("Vertical", 4),
    Sketcher.Constraint("PointOnObject", 3, 1, -2),
    Sketcher.Constraint("Radius", 3, 1.5),
    Sketcher.Constraint("DistanceY", -1, 1, 1, 2, 13.75),
    Sketcher.Constraint("Radius", 2, 14.265463),
    Sketcher.Constraint("DistanceY", 4, 1, 4, 2, 8.894028),
    Sketcher.Constraint("Distance", 0, 5.505959),
    Sketcher.Constraint("DistanceX", -1, 1, 0, 2, 3.085569),
    Sketcher.Constraint("DistanceX", -1, 1, 2, 1, 2.525339),
    Sketcher.Constraint("Distance", 1, 6.864327),
])
groove2 = doc.addObject("PartDesign::Groove", "Groove001")
body3.addObject(groove2)
groove2.Profile = sketch10
groove2.ReferenceAxis = (sketch10, ["V_Axis"])
groove2.Angle = 74
groove2.Reversed = True

sketch11 = doc.addObject("Sketcher::SketchObject", "Sketch010")
body3.addObject(sketch11)
sketch11.AttachmentSupport = (doc.getObject("XZ_Plane002"), [""])
sketch11.MapMode = "FlatFace"
sketch11.AttachmentOffset = App.Placement(V(0, 0, -22.55), App.Rotation())
sketch11.addGeometry([
    Part.Circle(V(-2.9, -5, 0), V(0, 0, 1), 0.9),
    Part.Circle(V(5.8, 0, 0), V(0, 0, 1), 0.9),
    Part.Circle(V(-2.9, 5, 0), V(0, 0, 1), 0.9),
], False)
sketch11.addConstraint([
    Sketcher.Constraint("Equal", 0, 1),
    Sketcher.Constraint("Equal", 1, 2),
    Sketcher.Constraint("Symmetric", 0, 3, 2, 3, -1),
    Sketcher.Constraint("PointOnObject", 1, 3, -1),
    Sketcher.Constraint("DistanceY", 0, 3, -1, 1, 5.0),
    Sketcher.Constraint("Diameter", 0, 1.717257),
    Sketcher.Constraint("DistanceX", 0, 3, -1, 1, 2.886751),
    Sketcher.Constraint("DistanceX", -1, 1, 1, 3, 5.773503),
])
pocket5 = doc.addObject("PartDesign::Pocket", "Pocket004")
body3.addObject(pocket5)
pocket5.Profile = sketch11
pocket5.Length = 13.5
pocket5.Reversed = True

sketch12 = doc.addObject("Sketcher::SketchObject", "Sketch011")
body3.addObject(sketch12)
sketch12.AttachmentSupport = (doc.getObject("XZ_Plane002"), [""])
sketch12.MapMode = "FlatFace"
sketch12.AttachmentOffset = App.Placement(V(0, 0, -24.61), App.Rotation())
sketch12.addGeometry(Part.Circle(V(0, 0, 0), V(0, 0, 1), 1.5), False)
sketch12.addConstraint([
    Sketcher.Constraint("Coincident", 0, 3, -1, 1),
    Sketcher.Constraint("Diameter", 0, 3.0),
])
pocket6 = doc.addObject("PartDesign::Pocket", "Pocket005")
body3.addObject(pocket6)
pocket6.Profile = sketch12
pocket6.Length = 0.1
pocket6.Reversed = True
body4 = doc.addObject("PartDesign::Body", "Body003")

sketch13 = doc.addObject("Sketcher::SketchObject", "Sketch012")
body4.addObject(sketch13)
sketch13.AttachmentSupport = (doc.getObject("XZ_Plane003"), [""])
sketch13.MapMode = "FlatFace"
sketch13.AttachmentOffset = App.Placement(V(0, 0, -24.51), App.Rotation())
sketch13.addGeometry(Part.Circle(V(0, 0, 0), V(0, 0, 1), 1.4), False)
sketch13.addConstraint([
    Sketcher.Constraint("Coincident", 0, 3, -1, 1),
    Sketcher.Constraint("Diameter", 0, 2.9),
])
pad4 = doc.addObject("PartDesign::Pad", "Pad003")
body4.addObject(pad4)
pad4.Profile = sketch13
pad4.Length = 0.1
pad4.Reversed = True
doc.recompute()

fillet = doc.addObject("PartDesign::Fillet", "Fillet")
body4.addObject(fillet)
fillet.Base = (pad4, edges_at(pad4, [(0, 24.61, -1.45)]))
fillet.Radius = 0.05
body5 = doc.addObject("PartDesign::Body", "Body004")

sketch14 = doc.addObject("Sketcher::SketchObject", "Sketch013")
body5.addObject(sketch14)
sketch14.AttachmentSupport = (doc.getObject("XZ_Plane004"), [""])
sketch14.MapMode = "FlatFace"
sketch14.addGeometry(Part.Circle(V(0, 0, 0), V(0, 0, 1), 2.8), False)
sketch14.addConstraint([
    Sketcher.Constraint("Coincident", 0, 3, -1, 1),
    Sketcher.Constraint("Diameter", 0, 5.6),
])
pad5 = doc.addObject("PartDesign::Pad", "Pad004")
body5.addObject(pad5)
pad5.Profile = sketch14
pad5.Length = 1.3
body6 = doc.addObject("PartDesign::Body", "Body005")

sketch15 = doc.addObject("Sketcher::SketchObject", "Sketch014")
body6.addObject(sketch15)
sketch15.AttachmentSupport = (doc.getObject("XZ_Plane005"), [""])
sketch15.MapMode = "FlatFace"
sketch15.AttachmentOffset = App.Placement(V(0, 0, 1.3), App.Rotation())
sketch15.addGeometry(Part.Circle(V(0, 0, 0), V(0, 0, 1), 1.5), False)
sketch15.addConstraint([
    Sketcher.Constraint("Coincident", 0, 3, -1, 1),
    Sketcher.Constraint("Diameter", 0, 2.95),
])
pad6 = doc.addObject("PartDesign::Pad", "Pad005")
body6.addObject(pad6)
pad6.Profile = sketch15
pad6.Length = 0.95
doc.recompute()

fillet2 = doc.addObject("PartDesign::Fillet", "Fillet001")
body6.addObject(fillet2)
fillet2.Base = (pad6, edges_at(pad6, [(0, -2.25, -1.475)]))
fillet2.Radius = 0.1

doc.recompute()
